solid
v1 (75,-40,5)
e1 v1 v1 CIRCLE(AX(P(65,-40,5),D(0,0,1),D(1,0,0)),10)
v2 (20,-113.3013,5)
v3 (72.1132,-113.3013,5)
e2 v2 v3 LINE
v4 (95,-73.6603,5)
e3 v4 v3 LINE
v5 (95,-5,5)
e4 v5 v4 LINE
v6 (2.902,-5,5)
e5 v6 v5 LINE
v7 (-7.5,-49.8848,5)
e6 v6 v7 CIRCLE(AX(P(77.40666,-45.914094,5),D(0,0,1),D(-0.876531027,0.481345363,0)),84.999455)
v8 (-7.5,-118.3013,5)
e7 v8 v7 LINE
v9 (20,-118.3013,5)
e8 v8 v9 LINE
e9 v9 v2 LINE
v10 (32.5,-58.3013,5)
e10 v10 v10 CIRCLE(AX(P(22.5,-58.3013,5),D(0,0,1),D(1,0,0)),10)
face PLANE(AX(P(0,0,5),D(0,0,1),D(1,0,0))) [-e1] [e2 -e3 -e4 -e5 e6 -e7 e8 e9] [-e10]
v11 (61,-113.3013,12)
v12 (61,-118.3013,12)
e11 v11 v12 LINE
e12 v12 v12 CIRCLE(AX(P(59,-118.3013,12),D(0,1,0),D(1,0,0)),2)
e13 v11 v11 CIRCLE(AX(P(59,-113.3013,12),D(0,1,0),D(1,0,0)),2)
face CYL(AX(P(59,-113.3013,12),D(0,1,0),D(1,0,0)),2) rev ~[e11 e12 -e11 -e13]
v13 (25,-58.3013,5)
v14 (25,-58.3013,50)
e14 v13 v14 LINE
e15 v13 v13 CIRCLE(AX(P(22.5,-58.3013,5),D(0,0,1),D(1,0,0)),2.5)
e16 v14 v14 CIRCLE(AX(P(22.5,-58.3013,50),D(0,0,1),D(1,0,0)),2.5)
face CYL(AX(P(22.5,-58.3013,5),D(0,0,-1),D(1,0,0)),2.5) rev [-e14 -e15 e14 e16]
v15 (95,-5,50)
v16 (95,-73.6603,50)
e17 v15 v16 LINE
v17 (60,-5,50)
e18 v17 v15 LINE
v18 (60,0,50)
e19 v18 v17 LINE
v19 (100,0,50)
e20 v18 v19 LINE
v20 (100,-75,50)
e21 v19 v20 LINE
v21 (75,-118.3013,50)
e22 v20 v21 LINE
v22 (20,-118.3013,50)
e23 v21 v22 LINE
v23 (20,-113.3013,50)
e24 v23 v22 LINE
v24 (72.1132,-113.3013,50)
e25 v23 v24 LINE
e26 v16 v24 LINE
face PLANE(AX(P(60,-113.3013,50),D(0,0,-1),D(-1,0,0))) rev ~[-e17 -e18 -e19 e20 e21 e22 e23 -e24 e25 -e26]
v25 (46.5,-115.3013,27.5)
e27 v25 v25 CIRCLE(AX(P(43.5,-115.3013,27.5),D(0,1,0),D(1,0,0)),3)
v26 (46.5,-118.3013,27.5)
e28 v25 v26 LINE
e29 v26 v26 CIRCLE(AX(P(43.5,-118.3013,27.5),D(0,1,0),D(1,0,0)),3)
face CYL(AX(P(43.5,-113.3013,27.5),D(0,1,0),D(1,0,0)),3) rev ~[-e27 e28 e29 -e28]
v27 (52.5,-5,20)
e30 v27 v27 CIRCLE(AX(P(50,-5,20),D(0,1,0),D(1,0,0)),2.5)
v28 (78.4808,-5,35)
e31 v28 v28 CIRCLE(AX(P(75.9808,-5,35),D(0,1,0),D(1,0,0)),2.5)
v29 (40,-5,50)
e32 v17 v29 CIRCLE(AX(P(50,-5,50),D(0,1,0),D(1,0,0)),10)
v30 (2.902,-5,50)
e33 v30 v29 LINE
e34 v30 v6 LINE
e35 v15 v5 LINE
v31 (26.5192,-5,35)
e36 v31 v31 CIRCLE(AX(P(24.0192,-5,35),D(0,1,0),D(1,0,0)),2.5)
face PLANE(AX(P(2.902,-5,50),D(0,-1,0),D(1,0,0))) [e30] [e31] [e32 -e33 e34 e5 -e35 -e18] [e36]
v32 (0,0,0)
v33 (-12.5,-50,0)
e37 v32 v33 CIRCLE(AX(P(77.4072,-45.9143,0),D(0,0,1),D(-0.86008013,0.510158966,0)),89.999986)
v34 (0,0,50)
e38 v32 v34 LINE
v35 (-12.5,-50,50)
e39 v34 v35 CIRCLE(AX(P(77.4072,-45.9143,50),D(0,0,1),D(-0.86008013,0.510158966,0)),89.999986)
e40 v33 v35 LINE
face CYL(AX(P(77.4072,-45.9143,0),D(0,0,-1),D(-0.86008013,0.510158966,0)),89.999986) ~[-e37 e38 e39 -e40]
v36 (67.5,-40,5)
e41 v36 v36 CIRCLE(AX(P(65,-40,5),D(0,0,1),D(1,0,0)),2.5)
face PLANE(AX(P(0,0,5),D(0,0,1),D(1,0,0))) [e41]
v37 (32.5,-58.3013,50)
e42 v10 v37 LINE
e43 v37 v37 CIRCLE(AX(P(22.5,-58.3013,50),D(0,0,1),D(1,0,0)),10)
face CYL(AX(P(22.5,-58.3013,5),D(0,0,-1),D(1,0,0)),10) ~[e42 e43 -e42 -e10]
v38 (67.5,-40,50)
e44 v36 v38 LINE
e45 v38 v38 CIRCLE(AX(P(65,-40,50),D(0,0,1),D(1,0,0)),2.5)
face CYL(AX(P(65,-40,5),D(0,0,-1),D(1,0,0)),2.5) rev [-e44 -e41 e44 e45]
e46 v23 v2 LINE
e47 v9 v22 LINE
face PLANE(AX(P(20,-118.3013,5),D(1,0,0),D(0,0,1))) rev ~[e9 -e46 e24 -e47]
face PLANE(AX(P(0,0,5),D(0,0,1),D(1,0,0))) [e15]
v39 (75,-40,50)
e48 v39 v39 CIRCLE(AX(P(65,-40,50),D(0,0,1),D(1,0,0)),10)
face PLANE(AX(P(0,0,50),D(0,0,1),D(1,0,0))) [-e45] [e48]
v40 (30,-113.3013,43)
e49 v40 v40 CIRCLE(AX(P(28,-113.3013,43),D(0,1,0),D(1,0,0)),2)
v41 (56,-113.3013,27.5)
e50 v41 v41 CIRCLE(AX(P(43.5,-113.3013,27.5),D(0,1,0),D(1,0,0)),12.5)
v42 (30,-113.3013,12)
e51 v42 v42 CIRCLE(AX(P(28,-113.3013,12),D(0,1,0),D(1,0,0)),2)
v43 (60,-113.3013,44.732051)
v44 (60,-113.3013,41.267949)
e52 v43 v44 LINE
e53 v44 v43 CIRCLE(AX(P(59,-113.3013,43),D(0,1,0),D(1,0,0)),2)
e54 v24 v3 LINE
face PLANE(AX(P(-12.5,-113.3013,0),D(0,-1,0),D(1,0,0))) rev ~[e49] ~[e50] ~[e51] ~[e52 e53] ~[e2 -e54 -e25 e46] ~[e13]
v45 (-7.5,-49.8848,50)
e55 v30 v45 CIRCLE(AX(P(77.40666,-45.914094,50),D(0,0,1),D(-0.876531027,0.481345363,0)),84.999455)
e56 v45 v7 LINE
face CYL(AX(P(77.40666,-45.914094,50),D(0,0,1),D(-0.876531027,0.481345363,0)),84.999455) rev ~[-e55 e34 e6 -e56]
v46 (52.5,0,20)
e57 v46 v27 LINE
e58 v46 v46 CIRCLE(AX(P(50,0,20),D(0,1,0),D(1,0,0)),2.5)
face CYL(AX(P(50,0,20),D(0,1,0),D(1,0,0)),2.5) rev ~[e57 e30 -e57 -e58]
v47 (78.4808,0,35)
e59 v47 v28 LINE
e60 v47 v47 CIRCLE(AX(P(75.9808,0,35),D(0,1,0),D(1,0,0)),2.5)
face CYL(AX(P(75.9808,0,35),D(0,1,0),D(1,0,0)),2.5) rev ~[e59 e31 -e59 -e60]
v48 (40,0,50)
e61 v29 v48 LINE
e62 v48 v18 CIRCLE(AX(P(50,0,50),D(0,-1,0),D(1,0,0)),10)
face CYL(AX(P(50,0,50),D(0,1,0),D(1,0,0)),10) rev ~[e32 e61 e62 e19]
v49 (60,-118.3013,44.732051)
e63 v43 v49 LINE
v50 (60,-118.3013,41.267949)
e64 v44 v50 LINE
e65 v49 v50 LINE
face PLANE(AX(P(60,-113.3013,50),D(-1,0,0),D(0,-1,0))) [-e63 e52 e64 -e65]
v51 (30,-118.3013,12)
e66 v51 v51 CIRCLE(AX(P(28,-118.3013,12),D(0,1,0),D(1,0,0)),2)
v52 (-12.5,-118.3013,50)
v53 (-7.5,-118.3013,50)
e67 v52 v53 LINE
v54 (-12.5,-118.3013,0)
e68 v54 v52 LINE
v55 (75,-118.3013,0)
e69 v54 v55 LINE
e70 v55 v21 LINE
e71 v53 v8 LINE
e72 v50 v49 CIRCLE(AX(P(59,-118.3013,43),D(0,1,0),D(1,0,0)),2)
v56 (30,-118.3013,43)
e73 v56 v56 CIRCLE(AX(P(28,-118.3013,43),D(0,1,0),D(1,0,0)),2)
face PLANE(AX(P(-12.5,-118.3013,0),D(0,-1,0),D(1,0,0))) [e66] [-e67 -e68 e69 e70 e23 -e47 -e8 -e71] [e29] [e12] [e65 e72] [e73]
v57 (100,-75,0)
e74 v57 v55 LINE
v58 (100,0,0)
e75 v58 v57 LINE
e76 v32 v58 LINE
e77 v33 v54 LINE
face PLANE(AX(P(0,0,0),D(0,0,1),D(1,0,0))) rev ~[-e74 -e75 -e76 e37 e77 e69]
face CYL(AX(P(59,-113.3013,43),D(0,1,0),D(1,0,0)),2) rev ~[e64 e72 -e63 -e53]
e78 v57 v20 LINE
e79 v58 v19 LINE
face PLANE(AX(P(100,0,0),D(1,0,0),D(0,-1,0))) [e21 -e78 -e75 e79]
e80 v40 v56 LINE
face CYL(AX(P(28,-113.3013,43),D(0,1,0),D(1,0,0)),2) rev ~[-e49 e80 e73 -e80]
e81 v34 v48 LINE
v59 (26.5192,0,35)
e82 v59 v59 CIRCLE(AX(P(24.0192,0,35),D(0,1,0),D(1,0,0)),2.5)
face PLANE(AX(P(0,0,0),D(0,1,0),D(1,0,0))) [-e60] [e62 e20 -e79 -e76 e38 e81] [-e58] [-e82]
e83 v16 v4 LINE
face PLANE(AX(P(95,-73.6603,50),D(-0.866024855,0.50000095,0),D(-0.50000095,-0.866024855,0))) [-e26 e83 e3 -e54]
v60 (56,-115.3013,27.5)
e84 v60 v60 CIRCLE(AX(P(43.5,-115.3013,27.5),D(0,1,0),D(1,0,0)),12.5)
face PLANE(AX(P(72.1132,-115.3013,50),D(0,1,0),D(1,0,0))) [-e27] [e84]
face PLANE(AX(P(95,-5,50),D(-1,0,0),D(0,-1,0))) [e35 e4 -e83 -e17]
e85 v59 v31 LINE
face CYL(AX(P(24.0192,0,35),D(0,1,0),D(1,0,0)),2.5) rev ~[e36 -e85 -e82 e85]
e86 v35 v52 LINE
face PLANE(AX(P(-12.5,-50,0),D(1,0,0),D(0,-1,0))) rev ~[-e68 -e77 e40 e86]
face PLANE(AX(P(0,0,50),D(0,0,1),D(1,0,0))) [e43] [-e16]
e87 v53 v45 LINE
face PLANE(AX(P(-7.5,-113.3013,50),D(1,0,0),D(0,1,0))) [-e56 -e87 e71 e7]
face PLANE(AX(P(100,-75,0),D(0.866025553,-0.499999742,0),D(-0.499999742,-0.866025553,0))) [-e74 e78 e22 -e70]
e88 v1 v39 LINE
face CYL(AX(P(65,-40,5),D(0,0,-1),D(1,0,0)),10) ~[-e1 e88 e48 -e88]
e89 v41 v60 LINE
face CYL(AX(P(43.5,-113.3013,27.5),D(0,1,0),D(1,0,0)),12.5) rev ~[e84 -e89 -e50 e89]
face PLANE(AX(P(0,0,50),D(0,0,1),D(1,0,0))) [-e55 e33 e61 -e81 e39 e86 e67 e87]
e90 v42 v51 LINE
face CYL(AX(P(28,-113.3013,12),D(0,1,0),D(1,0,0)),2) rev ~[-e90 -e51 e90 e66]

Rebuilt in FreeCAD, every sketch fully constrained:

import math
import FreeCAD as App
import Part
import Sketcher
from FreeCAD import Vector
Q = App.Units.Quantity


def add_polygon(sketch, points):
    """Adds a closed chain of lines whose ends are joined by coincident constraints."""
    first, n = sketch.GeometryCount, len(points)
    for a, b in zip(points, points[1:] + points[:1]):
        sketch.addGeometry(Part.LineSegment(App.Vector(*a, 0), App.Vector(*b, 0)), False)
    for i in range(n):
        sketch.addConstraint(Sketcher.Constraint("Coincident", first + i, 2, first + (i + 1) % n, 1))

doc = App.newDocument("Part")
body = doc.addObject("PartDesign::Body", "Body")

# Sketch on XY plane
sketch1 = doc.addObject("Sketcher::SketchObject", "Sketch")
body.addObject(sketch1)
sketch1.AttachmentSupport = (doc.XY_Plane, [""])
sketch1.MapMode = "FlatFace"
sketch1.addGeometry([
    Part.LineSegment(Vector(100, 0, 0), Vector(0, 0, 0)),  # 0
    Part.ArcOfCircle(Part.Circle(Vector(77.4072, -45.9143, 0), Vector(0, 0, 1), 89.999986), math.radians(149.325581), math.radians(182.601932)),  # 1
    Part.LineSegment(Vector(-12.5, -50, 0), Vector(-12.5, -118.3013, 0)),  # 2
    Part.LineSegment(Vector(-12.5, -118.3013, 0), Vector(75, -118.3013, 0)),  # 3
    Part.LineSegment(Vector(75, -118.3013, 0), Vector(100, -75, 0)),  # 4
    Part.LineSegment(Vector(100, -75, 0), Vector(100, 0, 0)),  # 5
], False)
sketch1.addConstraint([
    Sketcher.Constraint("Coincident", 0, 2, 1, 1),
    Sketcher.Constraint("Coincident", 1, 2, 2, 1),
    Sketcher.Constraint("Coincident", 2, 2, 3, 1),
    Sketcher.Constraint("Coincident", 3, 2, 4, 1),
    Sketcher.Constraint("Coincident", 4, 2, 5, 1),
    Sketcher.Constraint("Coincident", 5, 2, 0, 1),
    Sketcher.Constraint("Horizontal", 0),
    Sketcher.Constraint("Vertical", 2),
    Sketcher.Constraint("Horizontal", 3),
    Sketcher.Constraint("Vertical", 5),
    Sketcher.Constraint("Coincident", 0, 2, -1, 1),
    Sketcher.Constraint("Radius", 1, 90.0),
    Sketcher.Constraint("DistanceX", 0, 2, 0, 1, 100.0),
    Sketcher.Constraint("DistanceY", 5, 1, 5, 2, 75.0),
    Sketcher.Constraint("Distance", 4, 50.0),
    Sketcher.Constraint("DistanceY", 1, 2, -1, 1, 50.0),
    Sketcher.Constraint("DistanceX", -1, 1, 3, 2, 75.0),
    Sketcher.Constraint("DistanceX", 1, 2, -1, 1, 12.5),
])
pad1 = doc.addObject("PartDesign::Pad", "Pad")
body.addObject(pad1)
pad1.Profile = sketch1
pad1.Length = 50

# Sketch on XY plane
sketch2 = doc.addObject("Sketcher::SketchObject", "Sketch001")
body.addObject(sketch2)
sketch2.AttachmentSupport = (doc.XY_Plane, [""])
sketch2.MapMode = "FlatFace"
sketch2.AttachmentOffset = App.Placement(Vector(0, 0, 50), App.Rotation())
sketch2.addGeometry([
    Part.LineSegment(Vector(95, -5, 0), Vector(2.902, -5, 0)),  # 0
    Part.ArcOfCircle(Part.Circle(Vector(77.4072, -45.9143, 0), Vector(0, 0, 1), 85.000028), math.radians(151.226747), math.radians(182.677362)),  # 1
    Part.LineSegment(Vector(-7.5, -49.8848, 0), Vector(-7.5, -113.3013, 0)),  # 2
    Part.LineSegment(Vector(-7.5, -113.3013, 0), Vector(72.1132, -113.3013, 0)),  # 3
    Part.LineSegment(Vector(72.1132, -113.3013, 0), Vector(95, -73.6603, 0)),  # 4
    Part.LineSegment(Vector(95, -73.6603, 0), Vector(95, -5, 0)),  # 5
], False)
sketch2.addConstraint([
    Sketcher.Constraint("Coincident", 0, 2, 1, 1),
    Sketcher.Constraint("Coincident", 1, 2, 2, 1),
    Sketcher.Constraint("Coincident", 2, 2, 3, 1),
    Sketcher.Constraint("Coincident", 3, 2, 4, 1),
    Sketcher.Constraint("Coincident", 4, 2, 5, 1),
    Sketcher.Constraint("Coincident", 5, 2, 0, 1),
    Sketcher.Constraint("Horizontal", 0),
    Sketcher.Constraint("Vertical", 2),
    Sketcher.Constraint("Horizontal", 3),
    Sketcher.Constraint("Vertical", 5),
    Sketcher.Constraint("DistanceY", 0, 2, -1, 1, 5.0),
    Sketcher.Constraint("Radius", 1, 85.0),
    Sketcher.Constraint("Angle", 4, Q("60 deg")),
    Sketcher.Constraint("DistanceX", -1, 1, 4, 2, 95.0),
    Sketcher.Constraint("DistanceX", 1, 2, -1, 1, 7.5),
    Sketcher.Constraint("DistanceX", 0, 2, 0, 1, 92.098),
    Sketcher.Constraint("DistanceX", 3, 1, 3, 2, 79.6132),
    Sketcher.Constraint("DistanceY", 2, 2, 2, 1, 63.4165),
    Sketcher.Constraint("DistanceY", 5, 1, 5, 2, 68.6603),
])
pocket1 = doc.addObject("PartDesign::Pocket", "Pocket")
body.addObject(pocket1)
pocket1.Profile = sketch2
pocket1.Length = 45

# Sketch on XY plane
sketch3 = doc.addObject("Sketcher::SketchObject", "Sketch002")
body.addObject(sketch3)
sketch3.AttachmentSupport = (doc.XY_Plane, [""])
sketch3.MapMode = "FlatFace"
sketch3.AttachmentOffset = App.Placement(Vector(0, 0, 50), App.Rotation())
add_polygon(sketch3, [(60, -118.3013), (60, -113.3013), (-7.5, -113.3013), (-7.5, -118.3013)])  # lines 0-3
sketch3.addConstraint([
    Sketcher.Constraint("Vertical", 0),
    Sketcher.Constraint("Horizontal", 1),
    Sketcher.Constraint("Vertical", 2),
    Sketcher.Constraint("Horizontal", 3),
    Sketcher.Constraint("DistanceY", 0, 1, 0, 2, 5.0),
    Sketcher.Constraint("DistanceX", 1, 2, 1, 1, 67.5),
    Sketcher.Constraint("DistanceX", -1, 1, 0, 2, 60.0),
    Sketcher.Constraint("DistanceY", 0, 2, -1, 1, 113.3013),
])
pocket2 = doc.addObject("PartDesign::Pocket", "Pocket001")
body.addObject(pocket2)
pocket2.Profile = sketch3
pocket2.Length = 45

# Sketch on XZ plane
sketch4 = doc.addObject("Sketcher::SketchObject", "Sketch003")
body.addObject(sketch4)
sketch4.AttachmentSupport = (doc.XZ_Plane, [""])
sketch4.MapMode = "FlatFace"
sketch4.addGeometry(Part.Circle(Vector(50, 50, 0), Vector(0, 0, 1), 10), False)
sketch4.addConstraint([
    Sketcher.Constraint("Diameter", 0, 20.0),
    Sketcher.Constraint("DistanceX", -1, 1, 0, 3, 50.0),
    Sketcher.Constraint("DistanceY", -1, 1, 0, 3, 50.0),
])
pocket3 = doc.addObject("PartDesign::Pocket", "Pocket002")
body.addObject(pocket3)
pocket3.Profile = sketch4
pocket3.Type = "ThroughAll"
pocket3.Reversed = True

# Sketch on XZ plane
sketch5 = doc.addObject("Sketcher::SketchObject", "Sketch004")
body.addObject(sketch5)
sketch5.AttachmentSupport = (doc.XZ_Plane, [""])
sketch5.MapMode = "FlatFace"
sketch5.addGeometry([
    Part.Circle(Vector(50, 20, 0), Vector(0, 0, 1), 2.5),
    Part.Circle(Vector(24.0192, 35, 0), Vector(0, 0, 1), 2.5),
    Part.Circle(Vector(75.9808, 35, 0), Vector(0, 0, 1), 2.5),
], False)
sketch5.addConstraint([
    Sketcher.Constraint("Equal", 0, 1),
    Sketcher.Constraint("Equal", 1, 2),
    Sketcher.Constraint("Horizontal", 1, 3, 2, 3),
    Sketcher.Constraint("Diameter", 0, 5.0),
    Sketcher.Constraint("DistanceX", -1, 1, 0, 3, 50.0),
    Sketcher.Constraint("DistanceY", -1, 1, 0, 3, 20.0),
    Sketcher.Constraint("DistanceY", -1, 1, 1, 3, 35.0),
    Sketcher.Constraint("DistanceX", -1, 1, 1, 3, 24.0192),
    Sketcher.Constraint("DistanceX", -1, 1, 2, 3, 75.9808),
])
pocket4 = doc.addObject("PartDesign::Pocket", "Pocket003")
body.addObject(pocket4)
pocket4.Profile = sketch5
pocket4.Length = 5
pocket4.Reversed = True

# Sketch on XZ plane
sketch6 = doc.addObject("Sketcher::SketchObject", "Sketch005")
body.addObject(sketch6)
sketch6.AttachmentSupport = (doc.XZ_Plane, [""])
sketch6.MapMode = "FlatFace"
sketch6.AttachmentOffset = App.Placement(Vector(0, 0, 118.3013), App.Rotation())
add_polygon(sketch6, [(20, 5), (60, 5), (60, 15), (20, 15)])  # lines 0-3
sketch6.addConstraint([
    Sketcher.Constraint("Horizontal", 0),
    Sketcher.Constraint("Vertical", 1),
    Sketcher.Constraint("Horizontal", 2),
    Sketcher.Constraint("Vertical", 3),
    Sketcher.Constraint("DistanceX", 0, 1, 0, 2, 40.0),
    Sketcher.Constraint("DistanceY", 1, 1, 1, 2, 10.0),
    Sketcher.Constraint("DistanceX", -1, 1, 0, 2, 60.0),
    Sketcher.Constraint("DistanceY", -1, 1, 0, 2, 5.0),
])
pad2 = doc.addObject("PartDesign::Pad", "Pad001")
body.addObject(pad2)
pad2.Profile = sketch6
pad2.Length = 5
pad2.Reversed = True

# Sketch on XY plane
sketch7 = doc.addObject("Sketcher::SketchObject", "Sketch006")
body.addObject(sketch7)
sketch7.AttachmentSupport = (doc.XY_Plane, [""])
sketch7.MapMode = "FlatFace"
sketch7.AttachmentOffset = App.Placement(Vector(0, 0, 5), App.Rotation())
sketch7.addGeometry([
    Part.Circle(Vector(65, -40, 0), Vector(0, 0, 1), 10),
    Part.Circle(Vector(65, -40, 0), Vector(0, 0, 1), 2.5),
    Part.Circle(Vector(22.5, -58.3013, 0), Vector(0, 0, 1), 10),
    Part.Circle(Vector(22.5, -58.3013, 0), Vector(0, 0, 1), 2.5),
], False)
sketch7.addConstraint([
    Sketcher.Constraint("Coincident", 1, 3, 0, 3),
    Sketcher.Constraint("Coincident", 3, 3, 2, 3),
    Sketcher.Constraint("Equal", 0, 2),
    Sketcher.Constraint("Equal", 1, 3),
    Sketcher.Constraint("Diameter", 0, 20.0),
    Sketcher.Constraint("Diameter", 1, 5.0),
    Sketcher.Constraint("DistanceY", 0, 3, -1, 1, 40.0),
    Sketcher.Constraint("DistanceX", -1, 1, 0, 3, 65.0),
    Sketcher.Constraint("DistanceX", -1, 1, 2, 3, 22.5),
    Sketcher.Constraint("DistanceY", 2, 3, -1, 1, 58.3013),
])
pad3 = doc.addObject("PartDesign::Pad", "Pad002")
body.addObject(pad3)
pad3.Profile = sketch7
pad3.Length = 45

# Sketch on XZ plane
sketch8 = doc.addObject("Sketcher::SketchObject", "Sketch007")
body.addObject(sketch8)
sketch8.AttachmentSupport = (doc.XZ_Plane, [""])
sketch8.MapMode = "FlatFace"
sketch8.AttachmentOffset = App.Placement(Vector(0, 0, 113.3013), App.Rotation())
add_polygon(sketch8, [(67, 5), (20, 5), (20, 50), (60, 50), (67, 50)])  # lines 0-4
sketch8.addGeometry(Part.Circle(Vector(28, 43, 0), Vector(0, 0, 1), 2), False)  # 5
sketch8.addGeometry(Part.Circle(Vector(59, 43, 0), Vector(0, 0, 1), 2), False)  # 6
sketch8.addGeometry(Part.Circle(Vector(28, 12, 0), Vector(0, 0, 1), 2), False)  # 7
sketch8.addGeometry(Part.Circle(Vector(43.5, 27.5, 0), Vector(0, 0, 1), 3), False)  # 8
sketch8.addGeometry(Part.Circle(Vector(59, 12, 0), Vector(0, 0, 1), 2), False)  # 9
sketch8.addConstraint([
    Sketcher.Constraint("Horizontal", 0),
    Sketcher.Constraint("Vertical", 1),
    Sketcher.Constraint("Horizontal", 2),
    Sketcher.Constraint("Horizontal", 3),
    Sketcher.Constraint("Vertical", 4),
    Sketcher.Constraint("Equal", 5, 6),
    Sketcher.Constraint("Equal", 6, 7),
    Sketcher.Constraint("Equal", 7, 9),
    Sketcher.Constraint("Horizontal", 5, 3, 6, 3),
    Sketcher.Constraint("Horizontal", 7, 3, 9, 3),
    Sketcher.Constraint("Vertical", 5, 3, 7, 3),
    Sketcher.Constraint("Vertical", 6, 3, 9, 3),
    Sketcher.Constraint("Diameter", 5, 4.0),
    Sketcher.Constraint("Diameter", 8, 6.0),
    Sketcher.Constraint("DistanceX", 3, 1, 3, 2, 7.0),
    Sketcher.Constraint("DistanceX", 5, 3, 6, 3, 31.0),
    Sketcher.Constraint("DistanceY", 7, 3, 5, 3, 31.0),
    Sketcher.Constraint("DistanceY", 0, 2, 7, 3, 7.0),
    Sketcher.Constraint("DistanceY", 5, 3, 1, 2, 7.0),
    Sketcher.Constraint("DistanceX", 0, 2, 0, 1, 47.0),
    Sketcher.Constraint("DistanceX", -1, 1, 5, 3, 28.0),
    Sketcher.Constraint("DistanceY", -1, 1, 5, 3, 43.0),
    Sketcher.Constraint("DistanceX", -1, 1, 0, 2, 20.0),
    Sketcher.Constraint("DistanceX", -1, 1, 8, 3, 43.5),
    Sketcher.Constraint("DistanceY", -1, 1, 8, 3, 27.5),
])
pad4 = doc.addObject("PartDesign::Pad", "Pad003")
body.addObject(pad4)
pad4.Profile = sketch8
pad4.Length = 5

# Sketch on XZ plane
sketch9 = doc.addObject("Sketcher::SketchObject", "Sketch008")
body.addObject(sketch9)
sketch9.AttachmentSupport = (doc.XZ_Plane, [""])
sketch9.MapMode = "FlatFace"
sketch9.AttachmentOffset = App.Placement(Vector(0, 0, 113.3013), App.Rotation())
sketch9.addGeometry([
    Part.Circle(Vector(59, 12, 0), Vector(0, 0, 1), 2),
    Part.Circle(Vector(28, 12, 0), Vector(0, 0, 1), 2),
], False)
sketch9.addConstraint([
    Sketcher.Constraint("Equal", 0, 1),
    Sketcher.Constraint("Horizontal", 0, 3, 1, 3),
    Sketcher.Constraint("Diameter", 0, 4.0),
    Sketcher.Constraint("DistanceX", 1, 3, 0, 3, 31.0),
    Sketcher.Constraint("DistanceX", -1, 1, 0, 3, 59.0),
    Sketcher.Constraint("DistanceY", -1, 1, 0, 3, 12.0),
])
pocket5 = doc.addObject("PartDesign::Pocket", "Pocket004")
body.addObject(pocket5)
pocket5.Profile = sketch9
pocket5.Length = 5
pocket5.Reversed = True

# Sketch on XZ plane
sketch10 = doc.addObject("Sketcher::SketchObject", "Sketch009")
body.addObject(sketch10)
sketch10.AttachmentSupport = (doc.XZ_Plane, [""])
sketch10.MapMode = "FlatFace"
sketch10.AttachmentOffset = App.Placement(Vector(0, 0, 113.3013), App.Rotation())
sketch10.addGeometry([
    Part.Circle(Vector(43.5, 27.5, 0), Vector(0, 0, 1), 12.5),
    Part.Circle(Vector(43.5, 27.5, 0), Vector(0, 0, 1), 3),
], False)
sketch10.addConstraint([
    Sketcher.Constraint("Coincident", 1, 3, 0, 3),
    Sketcher.Constraint("Diameter", 0, 25.0),
    Sketcher.Constraint("Diameter", 1, 6.0),
    Sketcher.Constraint("DistanceX", -1, 1, 0, 3, 43.5),
    Sketcher.Constraint("DistanceY", -1, 1, 0, 3, 27.5),
])
pocket6 = doc.addObject("PartDesign::Pocket", "Pocket005")
body.addObject(pocket6)
pocket6.Profile = sketch10
pocket6.Length = 2
pocket6.Reversed = True

doc.recompute()
